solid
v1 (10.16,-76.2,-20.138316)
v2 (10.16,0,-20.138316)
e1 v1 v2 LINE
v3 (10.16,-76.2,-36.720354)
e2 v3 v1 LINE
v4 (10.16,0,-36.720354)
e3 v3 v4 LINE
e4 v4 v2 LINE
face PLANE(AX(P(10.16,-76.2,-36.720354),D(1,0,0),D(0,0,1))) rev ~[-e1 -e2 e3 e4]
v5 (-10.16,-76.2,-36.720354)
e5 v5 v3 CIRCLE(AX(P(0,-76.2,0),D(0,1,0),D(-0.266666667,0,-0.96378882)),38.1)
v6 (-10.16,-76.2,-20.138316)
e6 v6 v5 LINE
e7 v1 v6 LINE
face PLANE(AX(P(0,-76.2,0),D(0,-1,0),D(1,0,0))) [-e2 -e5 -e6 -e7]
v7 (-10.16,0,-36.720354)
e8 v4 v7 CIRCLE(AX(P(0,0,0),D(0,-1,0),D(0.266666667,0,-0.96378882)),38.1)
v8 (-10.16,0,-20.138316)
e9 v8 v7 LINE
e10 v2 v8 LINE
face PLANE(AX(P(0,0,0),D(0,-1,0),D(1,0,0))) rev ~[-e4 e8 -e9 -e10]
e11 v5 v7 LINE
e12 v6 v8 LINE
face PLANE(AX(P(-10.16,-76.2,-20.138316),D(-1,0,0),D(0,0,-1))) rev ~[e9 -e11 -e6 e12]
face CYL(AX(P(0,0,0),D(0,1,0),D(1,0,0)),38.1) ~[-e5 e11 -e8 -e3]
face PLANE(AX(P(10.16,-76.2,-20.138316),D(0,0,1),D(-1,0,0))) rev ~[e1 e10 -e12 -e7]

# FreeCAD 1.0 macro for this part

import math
import FreeCAD as App
import Part
import Sketcher
from FreeCAD import Vector
Q = App.Units.Quantity

doc = App.newDocument("Part")
body = doc.addObject("PartDesign::Body", "Body")

sketch1 = body.newObject("Sketcher::SketchObject", "Sketch")
sketch1.AttachmentSupport = (doc.getObject("XZ_Plane"), [""])
sketch1.MapMode = "FlatFace"
sketch1.addGeometry(Part.Circle(Vector(0, 0, 0), Vector(0, 0, 1), 38.1), False)
sketch1.addConstraint([
    Sketcher.Constraint("Coincident", 0, 3, -1, 1),
    Sketcher.Constraint("Diameter", 0, Q("3 in")),
])
pad1 = body.newObject("PartDesign::Pad", "Pad")
pad1.Profile = sketch1
pad1.Length = Q("3 in")

sketch2 = body.newObject("Sketcher::SketchObject", "Sketch001")
sketch2.AttachmentSupport = (doc.getObject("XZ_Plane"), [""])
sketch2.MapMode = "FlatFace"
sketch2.AttachmentOffset = App.Placement(Vector(0, 0, 3 * 25.4), App.Rotation())
sketch2.addGeometry([
    Part.LineSegment(Vector(-10.16, -20.138316, 0), Vector(-10.16, -36.720354, 0)),
    Part.ArcOfCircle(Part.Circle(Vector(0, -0.000001, 0), Vector(0, 0, 1), 38.099999), math.radians(-105.46601), math.radians(-74.53399)),
    Part.LineSegment(Vector(10.16, -36.720354, 0), Vector(10.16, -20.138316, 0)),
    Part.LineSegment(Vector(10.16, -20.138316, 0), Vector(-10.16, -20.138316, 0)),
], False)
sketch2.addConstraint([
    Sketcher.Constraint("Coincident", 0, 2, 1, 1),
    Sketcher.Constraint("Coincident", 1, 2, 2, 1),
    Sketcher.Constraint("Coincident", 2, 2, 3, 1),
    Sketcher.Constraint("Coincident", 3, 2, 0, 1),
    Sketcher.Constraint("Vertical", 0),
    Sketcher.Constraint("Vertical", 2),
    Sketcher.Constraint("Horizontal", 3),
    Sketcher.Constraint("Coincident", 1, 3, -1, 1),
    Sketcher.Constraint("Horizontal", 0, 2, 1, 2),
    Sketcher.Constraint("Radius", 1, Q("1.5 in")),
    Sketcher.Constraint("DistanceX", 3, 2, 3, 1, Q("0.8 in")),
    Sketcher.Constraint("DistanceY", 0, 2, 0, 1, 16.582038),
])
pocket1 = body.newObject("PartDesign::Pocket", "Pocket")
pocket1.Profile = sketch2
pocket1.Type = "ThroughAll"

doc.recompute()
